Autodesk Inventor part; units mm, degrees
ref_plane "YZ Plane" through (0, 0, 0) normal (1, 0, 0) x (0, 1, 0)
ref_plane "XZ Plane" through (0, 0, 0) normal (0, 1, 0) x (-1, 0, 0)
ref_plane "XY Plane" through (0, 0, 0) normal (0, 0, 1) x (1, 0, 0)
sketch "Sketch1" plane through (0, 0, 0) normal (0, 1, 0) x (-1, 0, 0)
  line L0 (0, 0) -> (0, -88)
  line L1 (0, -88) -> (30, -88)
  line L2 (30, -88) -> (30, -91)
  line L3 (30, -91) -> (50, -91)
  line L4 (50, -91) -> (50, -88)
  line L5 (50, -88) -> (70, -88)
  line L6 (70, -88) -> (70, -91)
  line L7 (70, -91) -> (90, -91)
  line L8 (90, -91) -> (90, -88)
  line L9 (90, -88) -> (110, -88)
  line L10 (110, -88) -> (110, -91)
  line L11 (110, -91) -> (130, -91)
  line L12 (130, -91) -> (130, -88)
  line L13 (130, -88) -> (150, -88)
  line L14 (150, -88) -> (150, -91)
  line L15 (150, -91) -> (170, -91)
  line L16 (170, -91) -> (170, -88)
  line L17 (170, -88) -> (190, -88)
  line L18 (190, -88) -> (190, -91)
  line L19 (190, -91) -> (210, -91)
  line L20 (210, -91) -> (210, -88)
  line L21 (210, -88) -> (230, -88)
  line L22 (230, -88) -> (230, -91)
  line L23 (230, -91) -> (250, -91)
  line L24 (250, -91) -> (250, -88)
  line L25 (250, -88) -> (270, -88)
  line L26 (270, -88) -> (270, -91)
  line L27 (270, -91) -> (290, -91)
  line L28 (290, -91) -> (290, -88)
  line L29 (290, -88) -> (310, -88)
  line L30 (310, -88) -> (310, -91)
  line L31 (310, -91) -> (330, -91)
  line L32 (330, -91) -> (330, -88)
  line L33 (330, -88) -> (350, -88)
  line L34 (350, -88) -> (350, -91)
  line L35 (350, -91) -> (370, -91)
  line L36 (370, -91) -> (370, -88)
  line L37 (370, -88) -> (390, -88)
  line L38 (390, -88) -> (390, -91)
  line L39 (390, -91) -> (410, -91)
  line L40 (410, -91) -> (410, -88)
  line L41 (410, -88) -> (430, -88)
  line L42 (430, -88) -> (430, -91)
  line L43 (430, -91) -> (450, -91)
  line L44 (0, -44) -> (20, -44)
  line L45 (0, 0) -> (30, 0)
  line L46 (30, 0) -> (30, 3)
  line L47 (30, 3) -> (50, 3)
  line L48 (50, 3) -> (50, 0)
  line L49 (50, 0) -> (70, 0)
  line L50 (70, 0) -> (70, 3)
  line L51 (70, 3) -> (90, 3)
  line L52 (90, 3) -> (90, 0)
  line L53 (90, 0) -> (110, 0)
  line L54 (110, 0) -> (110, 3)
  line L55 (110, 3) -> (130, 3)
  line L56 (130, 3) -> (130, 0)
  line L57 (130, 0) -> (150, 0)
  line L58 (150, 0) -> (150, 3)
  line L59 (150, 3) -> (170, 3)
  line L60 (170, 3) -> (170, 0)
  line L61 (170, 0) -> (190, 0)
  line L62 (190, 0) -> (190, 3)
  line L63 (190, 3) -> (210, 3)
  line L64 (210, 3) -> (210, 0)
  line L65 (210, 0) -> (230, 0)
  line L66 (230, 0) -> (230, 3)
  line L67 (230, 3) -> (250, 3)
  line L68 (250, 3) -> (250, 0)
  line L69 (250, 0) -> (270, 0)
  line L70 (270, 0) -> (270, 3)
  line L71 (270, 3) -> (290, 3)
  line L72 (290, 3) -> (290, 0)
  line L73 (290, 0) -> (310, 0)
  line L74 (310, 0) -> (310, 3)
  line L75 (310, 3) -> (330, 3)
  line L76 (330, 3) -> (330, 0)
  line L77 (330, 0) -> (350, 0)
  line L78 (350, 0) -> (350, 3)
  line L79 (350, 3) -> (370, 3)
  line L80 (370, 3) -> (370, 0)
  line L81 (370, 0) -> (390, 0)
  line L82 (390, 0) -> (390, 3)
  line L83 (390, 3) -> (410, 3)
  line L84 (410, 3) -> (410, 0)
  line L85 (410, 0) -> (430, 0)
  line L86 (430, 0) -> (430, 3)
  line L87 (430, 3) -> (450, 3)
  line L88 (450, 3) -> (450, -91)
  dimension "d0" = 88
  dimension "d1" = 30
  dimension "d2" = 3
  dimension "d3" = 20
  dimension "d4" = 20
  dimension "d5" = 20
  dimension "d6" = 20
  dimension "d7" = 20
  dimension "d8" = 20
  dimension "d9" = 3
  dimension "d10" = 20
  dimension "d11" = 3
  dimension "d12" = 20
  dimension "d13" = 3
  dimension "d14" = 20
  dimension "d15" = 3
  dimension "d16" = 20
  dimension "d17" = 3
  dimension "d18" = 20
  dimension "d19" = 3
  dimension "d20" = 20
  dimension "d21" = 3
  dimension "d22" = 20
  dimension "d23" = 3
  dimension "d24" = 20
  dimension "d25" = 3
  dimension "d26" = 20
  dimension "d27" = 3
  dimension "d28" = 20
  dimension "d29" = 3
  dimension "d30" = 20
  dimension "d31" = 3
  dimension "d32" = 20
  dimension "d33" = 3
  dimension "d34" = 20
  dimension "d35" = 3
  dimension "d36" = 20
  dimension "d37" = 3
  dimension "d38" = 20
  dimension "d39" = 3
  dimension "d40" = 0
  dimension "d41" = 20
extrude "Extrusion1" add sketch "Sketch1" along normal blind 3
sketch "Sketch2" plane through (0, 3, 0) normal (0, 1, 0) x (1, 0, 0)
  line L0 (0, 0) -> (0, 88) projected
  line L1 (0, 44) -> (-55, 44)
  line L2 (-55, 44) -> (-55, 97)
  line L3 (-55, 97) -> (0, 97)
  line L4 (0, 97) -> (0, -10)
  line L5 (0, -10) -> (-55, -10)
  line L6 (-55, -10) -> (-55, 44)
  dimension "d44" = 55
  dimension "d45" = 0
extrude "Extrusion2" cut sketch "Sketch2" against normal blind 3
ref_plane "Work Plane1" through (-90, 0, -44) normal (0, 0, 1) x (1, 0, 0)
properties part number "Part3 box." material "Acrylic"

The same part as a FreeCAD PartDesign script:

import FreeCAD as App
import Part
import Sketcher
Q = App.Units.Quantity

doc = App.newDocument("Part")
body = doc.addObject("PartDesign::Body", "Body")

sketch1 = doc.addObject("Sketcher::SketchObject", "Sketch")
body.addObject(sketch1)
sketch1.AttachmentSupport = (doc.XZ_Plane, [""])
sketch1.MapMode = "FlatFace"
sketch1.addGeometry([
    Part.LineSegment(App.Vector(-30, 0, 0), App.Vector(0, 0, 0)),
    Part.LineSegment(App.Vector(0, 0, 0), App.Vector(0, -88, 0)),
    Part.LineSegment(App.Vector(0, -88, 0), App.Vector(-30, -88, 0)),
    Part.LineSegment(App.Vector(-30, -88, 0), App.Vector(-30, -91, 0)),
    Part.LineSegment(App.Vector(-30, -91, 0), App.Vector(-50, -91, 0)),
    Part.LineSegment(App.Vector(-50, -91, 0), App.Vector(-50, -88, 0)),
    Part.LineSegment(App.Vector(-50, -88, 0), App.Vector(-70, -88, 0)),
    Part.LineSegment(App.Vector(-70, -88, 0), App.Vector(-70, -91, 0)),
    Part.LineSegment(App.Vector(-70, -91, 0), App.Vector(-90, -91, 0)),
    Part.LineSegment(App.Vector(-90, -91, 0), App.Vector(-90, -88, 0)),
    Part.LineSegment(App.Vector(-90, -88, 0), App.Vector(-110, -88, 0)),
    Part.LineSegment(App.Vector(-110, -88, 0), App.Vector(-110, -91, 0)),
    Part.LineSegment(App.Vector(-110, -91, 0), App.Vector(-130, -91, 0)),
    Part.LineSegment(App.Vector(-130, -91, 0), App.Vector(-130, -88, 0)),
    Part.LineSegment(App.Vector(-130, -88, 0), App.Vector(-150, -88, 0)),
    Part.LineSegment(App.Vector(-150, -88, 0), App.Vector(-150, -91, 0)),
    Part.LineSegment(App.Vector(-150, -91, 0), App.Vector(-170, -91, 0)),
    Part.LineSegment(App.Vector(-170, -91, 0), App.Vector(-170, -88, 0)),
    Part.LineSegment(App.Vector(-170, -88, 0), App.Vector(-190, -88, 0)),
    Part.LineSegment(App.Vector(-190, -88, 0), App.Vector(-190, -91, 0)),
    Part.LineSegment(App.Vector(-190, -91, 0), App.Vector(-210, -91, 0)),
    Part.LineSegment(App.Vector(-210, -91, 0), App.Vector(-210, -88, 0)),
    Part.LineSegment(App.Vector(-210, -88, 0), App.Vector(-230, -88, 0)),
    Part.LineSegment(App.Vector(-230, -88, 0), App.Vector(-230, -91, 0)),
    Part.LineSegment(App.Vector(-230, -91, 0), App.Vector(-250, -91, 0)),
    Part.LineSegment(App.Vector(-250, -91, 0), App.Vector(-250, -88, 0)),
    Part.LineSegment(App.Vector(-250, -88, 0), App.Vector(-270, -88, 0)),
    Part.LineSegment(App.Vector(-270, -88, 0), App.Vector(-270, -91, 0)),
    Part.LineSegment(App.Vector(-270, -91, 0), App.Vector(-290, -91, 0)),
    Part.LineSegment(App.Vector(-290, -91, 0), App.Vector(-290, -88, 0)),
    Part.LineSegment(App.Vector(-290, -88, 0), App.Vector(-310, -88, 0)),
    Part.LineSegment(App.Vector(-310, -88, 0), App.Vector(-310, -91, 0)),
    Part.LineSegment(App.Vector(-310, -91, 0), App.Vector(-330, -91, 0)),
    Part.LineSegment(App.Vector(-330, -91, 0), App.Vector(-330, -88, 0)),
    Part.LineSegment(App.Vector(-330, -88, 0), App.Vector(-350, -88, 0)),
    Part.LineSegment(App.Vector(-350, -88, 0), App.Vector(-350, -91, 0)),
    Part.LineSegment(App.Vector(-350, -91, 0), App.Vector(-370, -91, 0)),
    Part.LineSegment(App.Vector(-370, -91, 0), App.Vector(-370, -88, 0)),
    Part.LineSegment(App.Vector(-370, -88, 0), App.Vector(-390, -88, 0)),
    Part.LineSegment(App.Vector(-390, -88, 0), App.Vector(-390, -91, 0)),
    Part.LineSegment(App.Vector(-390, -91, 0), App.Vector(-410, -91, 0)),
    Part.LineSegment(App.Vector(-410, -91, 0), App.Vector(-410, -88, 0)),
    Part.LineSegment(App.Vector(-410, -88, 0), App.Vector(-430, -88, 0)),
    Part.LineSegment(App.Vector(-430, -88, 0), App.Vector(-430, -91, 0)),
    Part.LineSegment(App.Vector(-430, -91, 0), App.Vector(-450, -91, 0)),
    Part.LineSegment(App.Vector(-450, -91, 0), App.Vector(-450, 3, 0)),
    Part.LineSegment(App.Vector(-450, 3, 0), App.Vector(-430, 3, 0)),
    Part.LineSegment(App.Vector(-430, 3, 0), App.Vector(-430, 0, 0)),
    Part.LineSegment(App.Vector(-430, 0, 0), App.Vector(-410, 0, 0)),
    Part.LineSegment(App.Vector(-410, 0, 0), App.Vector(-410, 3, 0)),
    Part.LineSegment(App.Vector(-410, 3, 0), App.Vector(-390, 3, 0)),
    Part.LineSegment(App.Vector(-390, 3, 0), App.Vector(-390, 0, 0)),
    Part.LineSegment(App.Vector(-390, 0, 0), App.Vector(-370, 0, 0)),
    Part.LineSegment(App.Vector(-370, 0, 0), App.Vector(-370, 3, 0)),
    Part.LineSegment(App.Vector(-370, 3, 0), App.Vector(-350, 3, 0)),
    Part.LineSegment(App.Vector(-350, 3, 0), App.Vector(-350, 0, 0)),
    Part.LineSegment(App.Vector(-350, 0, 0), App.Vector(-330, 0, 0)),
    Part.LineSegment(App.Vector(-330, 0, 0), App.Vector(-330, 3, 0)),
    Part.LineSegment(App.Vector(-330, 3, 0), App.Vector(-310, 3, 0)),
    Part.LineSegment(App.Vector(-310, 3, 0), App.Vector(-310, 0, 0)),
    Part.LineSegment(App.Vector(-310, 0, 0), App.Vector(-290, 0, 0)),
    Part.LineSegment(App.Vector(-290, 0, 0), App.Vector(-290, 3, 0)),
    Part.LineSegment(App.Vector(-290, 3, 0), App.Vector(-270, 3, 0)),
    Part.LineSegment(App.Vector(-270, 3, 0), App.Vector(-270, 0, 0)),
    Part.LineSegment(App.Vector(-270, 0, 0), App.Vector(-250, 0, 0)),
    Part.LineSegment(App.Vector(-250, 0, 0), App.Vector(-250, 3, 0)),
    Part.LineSegment(App.Vector(-250, 3, 0), App.Vector(-230, 3, 0)),
    Part.LineSegment(App.Vector(-230, 3, 0), App.Vector(-230, 0, 0)),
    Part.LineSegment(App.Vector(-230, 0, 0), App.Vector(-210, 0, 0)),
    Part.LineSegment(App.Vector(-210, 0, 0), App.Vector(-210, 3, 0)),
    Part.LineSegment(App.Vector(-210, 3, 0), App.Vector(-190, 3, 0)),
    Part.LineSegment(App.Vector(-190, 3, 0), App.Vector(-190, 0, 0)),
    Part.LineSegment(App.Vector(-190, 0, 0), App.Vector(-170, 0, 0)),
    Part.LineSegment(App.Vector(-170, 0, 0), App.Vector(-170, 3, 0)),
    Part.LineSegment(App.Vector(-170, 3, 0), App.Vector(-150, 3, 0)),
    Part.LineSegment(App.Vector(-150, 3, 0), App.Vector(-150, 0, 0)),
    Part.LineSegment(App.Vector(-150, 0, 0), App.Vector(-130, 0, 0)),
    Part.LineSegment(App.Vector(-130, 0, 0), App.Vector(-130, 3, 0)),
    Part.LineSegment(App.Vector(-130, 3, 0), App.Vector(-110, 3, 0)),
    Part.LineSegment(App.Vector(-110, 3, 0), App.Vector(-110, 0, 0)),
    Part.LineSegment(App.Vector(-110, 0, 0), App.Vector(-90, 0, 0)),
    Part.LineSegment(App.Vector(-90, 0, 0), App.Vector(-90, 3, 0)),
    Part.LineSegment(App.Vector(-90, 3, 0), App.Vector(-70, 3, 0)),
    Part.LineSegment(App.Vector(-70, 3, 0), App.Vector(-70, 0, 0)),
    Part.LineSegment(App.Vector(-70, 0, 0), App.Vector(-50, 0, 0)),
    Part.LineSegment(App.Vector(-50, 0, 0), App.Vector(-50, 3, 0)),
    Part.LineSegment(App.Vector(-50, 3, 0), App.Vector(-30, 3, 0)),
    Part.LineSegment(App.Vector(-30, 3, 0), App.Vector(-30, 0, 0)),
], False)
sketch1.addConstraint([
    Sketcher.Constraint("Coincident", 0, 2, 1, 1),
    Sketcher.Constraint("Coincident", 1, 2, 2, 1),
    Sketcher.Constraint("Coincident", 2, 2, 3, 1),
    Sketcher.Constraint("Coincident", 3, 2, 4, 1),
    Sketcher.Constraint("Coincident", 4, 2, 5, 1),
    Sketcher.Constraint("Coincident", 5, 2, 6, 1),
    Sketcher.Constraint("Coincident", 6, 2, 7, 1),
    Sketcher.Constraint("Coincident", 7, 2, 8, 1),
    Sketcher.Constraint("Coincident", 8, 2, 9, 1),
    Sketcher.Constraint("Coincident", 9, 2, 10, 1),
    Sketcher.Constraint("Coincident", 10, 2, 11, 1),
    Sketcher.Constraint("Coincident", 11, 2, 12, 1),
    Sketcher.Constraint("Coincident", 12, 2, 13, 1),
    Sketcher.Constraint("Coincident", 13, 2, 14, 1),
    Sketcher.Constraint("Coincident", 14, 2, 15, 1),
    Sketcher.Constraint("Coincident", 15, 2, 16, 1),
    Sketcher.Constraint("Coincident", 16, 2, 17, 1),
    Sketcher.Constraint("Coincident", 17, 2, 18, 1),
    Sketcher.Constraint("Coincident", 18, 2, 19, 1),
    Sketcher.Constraint("Coincident", 19, 2, 20, 1),
    Sketcher.Constraint("Coincident", 20, 2, 21, 1),
    Sketcher.Constraint("Coincident", 21, 2, 22, 1),
    Sketcher.Constraint("Coincident", 22, 2, 23, 1),
    Sketcher.Constraint("Coincident", 23, 2, 24, 1),
    Sketcher.Constraint("Coincident", 24, 2, 25, 1),
    Sketcher.Constraint("Coincident", 25, 2, 26, 1),
    Sketcher.Constraint("Coincident", 26, 2, 27, 1),
    Sketcher.Constraint("Coincident", 27, 2, 28, 1),
    Sketcher.Constraint("Coincident", 28, 2, 29, 1),
    Sketcher.Constraint("Coincident", 29, 2, 30, 1),
    Sketcher.Constraint("Coincident", 30, 2, 31, 1),
    Sketcher.Constraint("Coincident", 31, 2, 32, 1),
    Sketcher.Constraint("Coincident", 32, 2, 33, 1),
    Sketcher.Constraint("Coincident", 33, 2, 34, 1),
    Sketcher.Constraint("Coincident", 34, 2, 35, 1),
    Sketcher.Constraint("Coincident", 35, 2, 36, 1),
    Sketcher.Constraint("Coincident", 36, 2, 37, 1),
    Sketcher.Constraint("Coincident", 37, 2, 38, 1),
    Sketcher.Constraint("Coincident", 38, 2, 39, 1),
    Sketcher.Constraint("Coincident", 39, 2, 40, 1),
    Sketcher.Constraint("Coincident", 40, 2, 41, 1),
    Sketcher.Constraint("Coincident", 41, 2, 42, 1),
    Sketcher.Constraint("Coincident", 42, 2, 43, 1),
    Sketcher.Constraint("Coincident", 43, 2, 44, 1),
    Sketcher.Constraint("Coincident", 44, 2, 45, 1),
    Sketcher.Constraint("Coincident", 45, 2, 46, 1),
    Sketcher.Constraint("Coincident", 46, 2, 47, 1),
    Sketcher.Constraint("Coincident", 47, 2, 48, 1),
    Sketcher.Constraint("Coincident", 48, 2, 49, 1),
    Sketcher.Constraint("Coincident", 49, 2, 50, 1),
    Sketcher.Constraint("Coincident", 50, 2, 51, 1),
    Sketcher.Constraint("Coincident", 51, 2, 52, 1),
    Sketcher.Constraint("Coincident", 52, 2, 53, 1),
    Sketcher.Constraint("Coincident", 53, 2, 54, 1),
    Sketcher.Constraint("Coincident", 54, 2, 55, 1),
    Sketcher.Constraint("Coincident", 55, 2, 56, 1),
    Sketcher.Constraint("Coincident", 56, 2, 57, 1),
    Sketcher.Constraint("Coincident", 57, 2, 58, 1),
    Sketcher.Constraint("Coincident", 58, 2, 59, 1),
    Sketcher.Constraint("Coincident", 59, 2, 60, 1),
    Sketcher.Constraint("Coincident", 60, 2, 61, 1),
    Sketcher.Constraint("Coincident", 61, 2, 62, 1),
    Sketcher.Constraint("Coincident", 62, 2, 63, 1),
    Sketcher.Constraint("Coincident", 63, 2, 64, 1),
    Sketcher.Constraint("Coincident", 64, 2, 65, 1),
    Sketcher.Constraint("Coincident", 65, 2, 66, 1),
    Sketcher.Constraint("Coincident", 66, 2, 67, 1),
    Sketcher.Constraint("Coincident", 67, 2, 68, 1),
    Sketcher.Constraint("Coincident", 68, 2, 69, 1),
    Sketcher.Constraint("Coincident", 69, 2, 70, 1),
    Sketcher.Constraint("Coincident", 70, 2, 71, 1),
    Sketcher.Constraint("Coincident", 71, 2, 72, 1),
    Sketcher.Constraint("Coincident", 72, 2, 73, 1),
    Sketcher.Constraint("Coincident", 73, 2, 74, 1),
    Sketcher.Constraint("Coincident", 74, 2, 75, 1),
    Sketcher.Constraint("Coincident", 75, 2, 76, 1),
    Sketcher.Constraint("Coincident", 76, 2, 77, 1),
    Sketcher.Constraint("Coincident", 77, 2, 78, 1),
    Sketcher.Constraint("Coincident", 78, 2, 79, 1),
    Sketcher.Constraint("Coincident", 79, 2, 80, 1),
    Sketcher.Constraint("Coincident", 80, 2, 81, 1),
    Sketcher.Constraint("Coincident", 81, 2, 82, 1),
    Sketcher.Constraint("Coincident", 82, 2, 83, 1),
    Sketcher.Constraint("Coincident", 83, 2, 84, 1),
    Sketcher.Constraint("Coincident", 84, 2, 85, 1),
    Sketcher.Constraint("Coincident", 85, 2, 86, 1),
    Sketcher.Constraint("Coincident", 86, 2, 87, 1),
    Sketcher.Constraint("Coincident", 87, 2, 0, 1),
    Sketcher.Constraint("Horizontal", 0),
    Sketcher.Constraint("Vertical", 1),
    Sketcher.Constraint("Horizontal", 2),
    Sketcher.Constraint("Vertical", 3),
    Sketcher.Constraint("Horizontal", 4),
    Sketcher.Constraint("Vertical", 5),
    Sketcher.Constraint("Horizontal", 6),
    Sketcher.Constraint("Vertical", 7),
    Sketcher.Constraint("Horizontal", 8),
    Sketcher.Constraint("Vertical", 9),
    Sketcher.Constraint("Horizontal", 10),
    Sketcher.Constraint("Vertical", 11),
    Sketcher.Constraint("Horizontal", 12),
    Sketcher.Constraint("Vertical", 13),
    Sketcher.Constraint("Horizontal", 14),
    Sketcher.Constraint("Vertical", 15),
    Sketcher.Constraint("Horizontal", 16),
    Sketcher.Constraint("Vertical", 17),
    Sketcher.Constraint("Horizontal", 18),
    Sketcher.Constraint("Vertical", 19),
    Sketcher.Constraint("Horizontal", 20),
    Sketcher.Constraint("Vertical", 21),
    Sketcher.Constraint("Horizontal", 22),
    Sketcher.Constraint("Vertical", 23),
    Sketcher.Constraint("Horizontal", 24),
    Sketcher.Constraint("Vertical", 25),
    Sketcher.Constraint("Horizontal", 26),
    Sketcher.Constraint("Vertical", 27),
    Sketcher.Constraint("Horizontal", 28),
    Sketcher.Constraint("Vertical", 29),
    Sketcher.Constraint("Horizontal", 30),
    Sketcher.Constraint("Vertical", 31),
    Sketcher.Constraint("Horizontal", 32),
    Sketcher.Constraint("Vertical", 33),
    Sketcher.Constraint("Horizontal", 34),
    Sketcher.Constraint("Vertical", 35),
    Sketcher.Constraint("Horizontal", 36),
    Sketcher.Constraint("Vertical", 37),
    Sketcher.Constraint("Horizontal", 38),
    Sketcher.Constraint("Vertical", 39),
    Sketcher.Constraint("Horizontal", 40),
    Sketcher.Constraint("Vertical", 41),
    Sketcher.Constraint("Horizontal", 42),
    Sketcher.Constraint("Vertical", 43),
    Sketcher.Constraint("Horizontal", 44),
    Sketcher.Constraint("Vertical", 45),
    Sketcher.Constraint("Horizontal", 46),
    Sketcher.Constraint("Vertical", 47),
    Sketcher.Constraint("Horizontal", 48),
    Sketcher.Constraint("Vertical", 49),
    Sketcher.Constraint("Horizontal", 50),
    Sketcher.Constraint("Vertical", 51),
    Sketcher.Constraint("Horizontal", 52),
    Sketcher.Constraint("Vertical", 53),
    Sketcher.Constraint("Horizontal", 54),
    Sketcher.Constraint("Vertical", 55),
    Sketcher.Constraint("Horizontal", 56),
    Sketcher.Constraint("Vertical", 57),
    Sketcher.Constraint("Horizontal", 58),
    Sketcher.Constraint("Vertical", 59),
    Sketcher.Constraint("Horizontal", 60),
    Sketcher.Constraint("Vertical", 61),
    Sketcher.Constraint("Horizontal", 62),
    Sketcher.Constraint("Vertical", 63),
    Sketcher.Constraint("Horizontal", 64),
    Sketcher.Constraint("Vertical", 65),
    Sketcher.Constraint("Horizontal", 66),
    Sketcher.Constraint("Vertical", 67),
    Sketcher.Constraint("Horizontal", 68),
    Sketcher.Constraint("Vertical", 69),
    Sketcher.Constraint("Horizontal", 70),
    Sketcher.Constraint("Vertical", 71),
    Sketcher.Constraint("Horizontal", 72),
    Sketcher.Constraint("Vertical", 73),
    Sketcher.Constraint("Horizontal", 74),
    Sketcher.Constraint("Vertical", 75),
    Sketcher.Constraint("Horizontal", 76),
    Sketcher.Constraint("Vertical", 77),
    Sketcher.Constraint("Horizontal", 78),
    Sketcher.Constraint("Vertical", 79),
    Sketcher.Constraint("Horizontal", 80),
    Sketcher.Constraint("Vertical", 81),
    Sketcher.Constraint("Horizontal", 82),
    Sketcher.Constraint("Vertical", 83),
    Sketcher.Constraint("Horizontal", 84),
    Sketcher.Constraint("Vertical", 85),
    Sketcher.Constraint("Horizontal", 86),
    Sketcher.Constraint("Vertical", 87),
    Sketcher.Constraint("Coincident", 0, 2, -1, 1),
    Sketcher.Constraint("PointOnObject", 47, 2, -1),
    Sketcher.Constraint("PointOnObject", 51, 2, -1),
    Sketcher.Constraint("PointOnObject", 55, 2, -1),
    Sketcher.Constraint("PointOnObject", 59, 2, -1),
    Sketcher.Constraint("PointOnObject", 63, 2, -1),
    Sketcher.Constraint("PointOnObject", 67, 2, -1),
    Sketcher.Constraint("PointOnObject", 71, 2, -1),
    Sketcher.Constraint("PointOnObject", 75, 2, -1),
    Sketcher.Constraint("PointOnObject", 79, 2, -1),
    Sketcher.Constraint("PointOnObject", 83, 2, -1),
    Sketcher.Constraint("Horizontal", 2, 2, 5, 2),
    Sketcher.Constraint("Horizontal", 4, 2, 7, 2),
    Sketcher.Constraint("Horizontal", 6, 2, 9, 2),
    Sketcher.Constraint("Horizontal", 8, 2, 11, 2),
    Sketcher.Constraint("Horizontal", 10, 2, 13, 2),
    Sketcher.Constraint("Horizontal", 12, 2, 15, 2),
    Sketcher.Constraint("Horizontal", 14, 2, 17, 2),
    Sketcher.Constraint("Horizontal", 16, 2, 19, 2),
    Sketcher.Constraint("Horizontal", 18, 2, 21, 2),
    Sketcher.Constraint("Horizontal", 20, 2, 23, 2),
    Sketcher.Constraint("Horizontal", 22, 2, 25, 2),
    Sketcher.Constraint("Horizontal", 24, 2, 27, 2),
    Sketcher.Constraint("Horizontal", 26, 2, 29, 2),
    Sketcher.Constraint("Horizontal", 28, 2, 31, 2),
    Sketcher.Constraint("Horizontal", 30, 2, 33, 2),
    Sketcher.Constraint("Horizontal", 32, 2, 35, 2),
    Sketcher.Constraint("Horizontal", 34, 2, 37, 2),
    Sketcher.Constraint("Horizontal", 36, 2, 39, 2),
    Sketcher.Constraint("Horizontal", 38, 2, 41, 2),
    Sketcher.Constraint("Horizontal", 40, 2, 43, 2),
    Sketcher.Constraint("Horizontal", 46, 2, 49, 2),
    Sketcher.Constraint("Horizontal", 50, 2, 53, 2),
    Sketcher.Constraint("Horizontal", 54, 2, 57, 2),
    Sketcher.Constraint("Horizontal", 58, 2, 61, 2),
    Sketcher.Constraint("Horizontal", 62, 2, 65, 2),
    Sketcher.Constraint("Horizontal", 66, 2, 69, 2),
    Sketcher.Constraint("Horizontal", 70, 2, 73, 2),
    Sketcher.Constraint("Horizontal", 74, 2, 77, 2),
    Sketcher.Constraint("Horizontal", 78, 2, 81, 2),
    Sketcher.Constraint("Horizontal", 82, 2, 85, 2),
    Sketcher.Constraint("Vertical", 43, 2, 46, 2),
    Sketcher.Constraint("Vertical", 41, 2, 48, 2),
    Sketcher.Constraint("Vertical", 39, 2, 50, 2),
    Sketcher.Constraint("Vertical", 37, 2, 52, 2),
    Sketcher.Constraint("Vertical", 35, 2, 54, 2),
    Sketcher.Constraint("Vertical", 33, 2, 56, 2),
    Sketcher.Constraint("Vertical", 31, 2, 58, 2),
    Sketcher.Constraint("Vertical", 29, 2, 60, 2),
    Sketcher.Constraint("Vertical", 27, 2, 62, 2),
    Sketcher.Constraint("Vertical", 25, 2, 64, 2),
    Sketcher.Constraint("Vertical", 23, 2, 66, 2),
    Sketcher.Constraint("Vertical", 21, 2, 68, 2),
    Sketcher.Constraint("Vertical", 19, 2, 70, 2),
    Sketcher.Constraint("Vertical", 17, 2, 72, 2),
    Sketcher.Constraint("Vertical", 15, 2, 74, 2),
    Sketcher.Constraint("Vertical", 13, 2, 76, 2),
    Sketcher.Constraint("Vertical", 11, 2, 78, 2),
    Sketcher.Constraint("Vertical", 9, 2, 80, 2),
    Sketcher.Constraint("Vertical", 7, 2, 82, 2),
    Sketcher.Constraint("Vertical", 5, 2, 84, 2),
    Sketcher.Constraint("Vertical", 3, 2, 86, 2),
    Sketcher.Constraint("Equal", 4, 6),
    Sketcher.Constraint("Equal", 6, 8),
    Sketcher.Constraint("Equal", 8, 10),
    Sketcher.Constraint("Equal", 10, 12),
    Sketcher.Constraint("Equal", 12, 14),
    Sketcher.Constraint("Equal", 14, 16),
    Sketcher.Constraint("Equal", 16, 18),
    Sketcher.Constraint("Equal", 18, 20),
    Sketcher.Constraint("Equal", 20, 22),
    Sketcher.Constraint("Equal", 22, 24),
    Sketcher.Constraint("Equal", 24, 26),
    Sketcher.Constraint("Equal", 26, 28),
    Sketcher.Constraint("Equal", 28, 30),
    Sketcher.Constraint("Equal", 30, 32),
    Sketcher.Constraint("Equal", 32, 34),
    Sketcher.Constraint("Equal", 34, 36),
    Sketcher.Constraint("Equal", 36, 38),
    Sketcher.Constraint("Equal", 38, 40),
    Sketcher.Constraint("Equal", 40, 42),
    Sketcher.Constraint("Equal", 42, 44),
    Sketcher.Constraint("Equal", 43, 47),
    Sketcher.Constraint("DistanceX", 0, 1, 0, 2, Q("30 mm")),
    Sketcher.Constraint("DistanceX", 4, 2, 4, 1, Q("20 mm")),
    Sketcher.Constraint("DistanceY", 1, 2, 1, 1, Q("88 mm")),
    Sketcher.Constraint("DistanceY", 3, 2, 3, 1, Q("3 mm")),
])
pad1 = doc.addObject("PartDesign::Pad", "Pad")
body.addObject(pad1)
pad1.Profile = sketch1
pad1.Length = 3
pad1.Reversed = True

sketch2 = doc.addObject("Sketcher::SketchObject", "Sketch001")
body.addObject(sketch2)
sketch2.AttachmentSupport = (doc.XZ_Plane, [""])
sketch2.MapMode = "FlatFace"
sketch2.AttachmentOffset = App.Placement(App.Vector(0, 0, -3), App.Rotation())
sketch2.addGeometry([
    Part.LineSegment(App.Vector(0, 10, 0), App.Vector(0, -97, 0)),
    Part.LineSegment(App.Vector(0, -97, 0), App.Vector(-55, -97, 0)),
    Part.LineSegment(App.Vector(-55, -97, 0), App.Vector(-55, 10, 0)),
    Part.LineSegment(App.Vector(-55, 10, 0), App.Vector(0, 10, 0)),
], False)
sketch2.addConstraint([
    Sketcher.Constraint("Coincident", 0, 2, 1, 1),
    Sketcher.Constraint("Coincident", 1, 2, 2, 1),
    Sketcher.Constraint("Coincident", 2, 2, 3, 1),
    Sketcher.Constraint("Coincident", 3, 2, 0, 1),
    Sketcher.Constraint("Vertical", 0),
    Sketcher.Constraint("Horizontal", 1),
    Sketcher.Constraint("Vertical", 2),
    Sketcher.Constraint("Horizontal", 3),
    Sketcher.Constraint("PointOnObject", 0, 2, -2),
    Sketcher.Constraint("DistanceX", 1, 2, 1, 1, Q("55 mm")),
    Sketcher.Constraint("DistanceY", 0, 2, 0, 1, Q("107 mm")),
    Sketcher.Constraint("DistanceY", 0, 2, -1, 1, Q("97 mm")),
])
pocket1 = doc.addObject("PartDesign::Pocket", "Pocket")
body.addObject(pocket1)
pocket1.Profile = sketch2
pocket1.Length = 3
pocket1.Reversed = True

doc.recompute()
